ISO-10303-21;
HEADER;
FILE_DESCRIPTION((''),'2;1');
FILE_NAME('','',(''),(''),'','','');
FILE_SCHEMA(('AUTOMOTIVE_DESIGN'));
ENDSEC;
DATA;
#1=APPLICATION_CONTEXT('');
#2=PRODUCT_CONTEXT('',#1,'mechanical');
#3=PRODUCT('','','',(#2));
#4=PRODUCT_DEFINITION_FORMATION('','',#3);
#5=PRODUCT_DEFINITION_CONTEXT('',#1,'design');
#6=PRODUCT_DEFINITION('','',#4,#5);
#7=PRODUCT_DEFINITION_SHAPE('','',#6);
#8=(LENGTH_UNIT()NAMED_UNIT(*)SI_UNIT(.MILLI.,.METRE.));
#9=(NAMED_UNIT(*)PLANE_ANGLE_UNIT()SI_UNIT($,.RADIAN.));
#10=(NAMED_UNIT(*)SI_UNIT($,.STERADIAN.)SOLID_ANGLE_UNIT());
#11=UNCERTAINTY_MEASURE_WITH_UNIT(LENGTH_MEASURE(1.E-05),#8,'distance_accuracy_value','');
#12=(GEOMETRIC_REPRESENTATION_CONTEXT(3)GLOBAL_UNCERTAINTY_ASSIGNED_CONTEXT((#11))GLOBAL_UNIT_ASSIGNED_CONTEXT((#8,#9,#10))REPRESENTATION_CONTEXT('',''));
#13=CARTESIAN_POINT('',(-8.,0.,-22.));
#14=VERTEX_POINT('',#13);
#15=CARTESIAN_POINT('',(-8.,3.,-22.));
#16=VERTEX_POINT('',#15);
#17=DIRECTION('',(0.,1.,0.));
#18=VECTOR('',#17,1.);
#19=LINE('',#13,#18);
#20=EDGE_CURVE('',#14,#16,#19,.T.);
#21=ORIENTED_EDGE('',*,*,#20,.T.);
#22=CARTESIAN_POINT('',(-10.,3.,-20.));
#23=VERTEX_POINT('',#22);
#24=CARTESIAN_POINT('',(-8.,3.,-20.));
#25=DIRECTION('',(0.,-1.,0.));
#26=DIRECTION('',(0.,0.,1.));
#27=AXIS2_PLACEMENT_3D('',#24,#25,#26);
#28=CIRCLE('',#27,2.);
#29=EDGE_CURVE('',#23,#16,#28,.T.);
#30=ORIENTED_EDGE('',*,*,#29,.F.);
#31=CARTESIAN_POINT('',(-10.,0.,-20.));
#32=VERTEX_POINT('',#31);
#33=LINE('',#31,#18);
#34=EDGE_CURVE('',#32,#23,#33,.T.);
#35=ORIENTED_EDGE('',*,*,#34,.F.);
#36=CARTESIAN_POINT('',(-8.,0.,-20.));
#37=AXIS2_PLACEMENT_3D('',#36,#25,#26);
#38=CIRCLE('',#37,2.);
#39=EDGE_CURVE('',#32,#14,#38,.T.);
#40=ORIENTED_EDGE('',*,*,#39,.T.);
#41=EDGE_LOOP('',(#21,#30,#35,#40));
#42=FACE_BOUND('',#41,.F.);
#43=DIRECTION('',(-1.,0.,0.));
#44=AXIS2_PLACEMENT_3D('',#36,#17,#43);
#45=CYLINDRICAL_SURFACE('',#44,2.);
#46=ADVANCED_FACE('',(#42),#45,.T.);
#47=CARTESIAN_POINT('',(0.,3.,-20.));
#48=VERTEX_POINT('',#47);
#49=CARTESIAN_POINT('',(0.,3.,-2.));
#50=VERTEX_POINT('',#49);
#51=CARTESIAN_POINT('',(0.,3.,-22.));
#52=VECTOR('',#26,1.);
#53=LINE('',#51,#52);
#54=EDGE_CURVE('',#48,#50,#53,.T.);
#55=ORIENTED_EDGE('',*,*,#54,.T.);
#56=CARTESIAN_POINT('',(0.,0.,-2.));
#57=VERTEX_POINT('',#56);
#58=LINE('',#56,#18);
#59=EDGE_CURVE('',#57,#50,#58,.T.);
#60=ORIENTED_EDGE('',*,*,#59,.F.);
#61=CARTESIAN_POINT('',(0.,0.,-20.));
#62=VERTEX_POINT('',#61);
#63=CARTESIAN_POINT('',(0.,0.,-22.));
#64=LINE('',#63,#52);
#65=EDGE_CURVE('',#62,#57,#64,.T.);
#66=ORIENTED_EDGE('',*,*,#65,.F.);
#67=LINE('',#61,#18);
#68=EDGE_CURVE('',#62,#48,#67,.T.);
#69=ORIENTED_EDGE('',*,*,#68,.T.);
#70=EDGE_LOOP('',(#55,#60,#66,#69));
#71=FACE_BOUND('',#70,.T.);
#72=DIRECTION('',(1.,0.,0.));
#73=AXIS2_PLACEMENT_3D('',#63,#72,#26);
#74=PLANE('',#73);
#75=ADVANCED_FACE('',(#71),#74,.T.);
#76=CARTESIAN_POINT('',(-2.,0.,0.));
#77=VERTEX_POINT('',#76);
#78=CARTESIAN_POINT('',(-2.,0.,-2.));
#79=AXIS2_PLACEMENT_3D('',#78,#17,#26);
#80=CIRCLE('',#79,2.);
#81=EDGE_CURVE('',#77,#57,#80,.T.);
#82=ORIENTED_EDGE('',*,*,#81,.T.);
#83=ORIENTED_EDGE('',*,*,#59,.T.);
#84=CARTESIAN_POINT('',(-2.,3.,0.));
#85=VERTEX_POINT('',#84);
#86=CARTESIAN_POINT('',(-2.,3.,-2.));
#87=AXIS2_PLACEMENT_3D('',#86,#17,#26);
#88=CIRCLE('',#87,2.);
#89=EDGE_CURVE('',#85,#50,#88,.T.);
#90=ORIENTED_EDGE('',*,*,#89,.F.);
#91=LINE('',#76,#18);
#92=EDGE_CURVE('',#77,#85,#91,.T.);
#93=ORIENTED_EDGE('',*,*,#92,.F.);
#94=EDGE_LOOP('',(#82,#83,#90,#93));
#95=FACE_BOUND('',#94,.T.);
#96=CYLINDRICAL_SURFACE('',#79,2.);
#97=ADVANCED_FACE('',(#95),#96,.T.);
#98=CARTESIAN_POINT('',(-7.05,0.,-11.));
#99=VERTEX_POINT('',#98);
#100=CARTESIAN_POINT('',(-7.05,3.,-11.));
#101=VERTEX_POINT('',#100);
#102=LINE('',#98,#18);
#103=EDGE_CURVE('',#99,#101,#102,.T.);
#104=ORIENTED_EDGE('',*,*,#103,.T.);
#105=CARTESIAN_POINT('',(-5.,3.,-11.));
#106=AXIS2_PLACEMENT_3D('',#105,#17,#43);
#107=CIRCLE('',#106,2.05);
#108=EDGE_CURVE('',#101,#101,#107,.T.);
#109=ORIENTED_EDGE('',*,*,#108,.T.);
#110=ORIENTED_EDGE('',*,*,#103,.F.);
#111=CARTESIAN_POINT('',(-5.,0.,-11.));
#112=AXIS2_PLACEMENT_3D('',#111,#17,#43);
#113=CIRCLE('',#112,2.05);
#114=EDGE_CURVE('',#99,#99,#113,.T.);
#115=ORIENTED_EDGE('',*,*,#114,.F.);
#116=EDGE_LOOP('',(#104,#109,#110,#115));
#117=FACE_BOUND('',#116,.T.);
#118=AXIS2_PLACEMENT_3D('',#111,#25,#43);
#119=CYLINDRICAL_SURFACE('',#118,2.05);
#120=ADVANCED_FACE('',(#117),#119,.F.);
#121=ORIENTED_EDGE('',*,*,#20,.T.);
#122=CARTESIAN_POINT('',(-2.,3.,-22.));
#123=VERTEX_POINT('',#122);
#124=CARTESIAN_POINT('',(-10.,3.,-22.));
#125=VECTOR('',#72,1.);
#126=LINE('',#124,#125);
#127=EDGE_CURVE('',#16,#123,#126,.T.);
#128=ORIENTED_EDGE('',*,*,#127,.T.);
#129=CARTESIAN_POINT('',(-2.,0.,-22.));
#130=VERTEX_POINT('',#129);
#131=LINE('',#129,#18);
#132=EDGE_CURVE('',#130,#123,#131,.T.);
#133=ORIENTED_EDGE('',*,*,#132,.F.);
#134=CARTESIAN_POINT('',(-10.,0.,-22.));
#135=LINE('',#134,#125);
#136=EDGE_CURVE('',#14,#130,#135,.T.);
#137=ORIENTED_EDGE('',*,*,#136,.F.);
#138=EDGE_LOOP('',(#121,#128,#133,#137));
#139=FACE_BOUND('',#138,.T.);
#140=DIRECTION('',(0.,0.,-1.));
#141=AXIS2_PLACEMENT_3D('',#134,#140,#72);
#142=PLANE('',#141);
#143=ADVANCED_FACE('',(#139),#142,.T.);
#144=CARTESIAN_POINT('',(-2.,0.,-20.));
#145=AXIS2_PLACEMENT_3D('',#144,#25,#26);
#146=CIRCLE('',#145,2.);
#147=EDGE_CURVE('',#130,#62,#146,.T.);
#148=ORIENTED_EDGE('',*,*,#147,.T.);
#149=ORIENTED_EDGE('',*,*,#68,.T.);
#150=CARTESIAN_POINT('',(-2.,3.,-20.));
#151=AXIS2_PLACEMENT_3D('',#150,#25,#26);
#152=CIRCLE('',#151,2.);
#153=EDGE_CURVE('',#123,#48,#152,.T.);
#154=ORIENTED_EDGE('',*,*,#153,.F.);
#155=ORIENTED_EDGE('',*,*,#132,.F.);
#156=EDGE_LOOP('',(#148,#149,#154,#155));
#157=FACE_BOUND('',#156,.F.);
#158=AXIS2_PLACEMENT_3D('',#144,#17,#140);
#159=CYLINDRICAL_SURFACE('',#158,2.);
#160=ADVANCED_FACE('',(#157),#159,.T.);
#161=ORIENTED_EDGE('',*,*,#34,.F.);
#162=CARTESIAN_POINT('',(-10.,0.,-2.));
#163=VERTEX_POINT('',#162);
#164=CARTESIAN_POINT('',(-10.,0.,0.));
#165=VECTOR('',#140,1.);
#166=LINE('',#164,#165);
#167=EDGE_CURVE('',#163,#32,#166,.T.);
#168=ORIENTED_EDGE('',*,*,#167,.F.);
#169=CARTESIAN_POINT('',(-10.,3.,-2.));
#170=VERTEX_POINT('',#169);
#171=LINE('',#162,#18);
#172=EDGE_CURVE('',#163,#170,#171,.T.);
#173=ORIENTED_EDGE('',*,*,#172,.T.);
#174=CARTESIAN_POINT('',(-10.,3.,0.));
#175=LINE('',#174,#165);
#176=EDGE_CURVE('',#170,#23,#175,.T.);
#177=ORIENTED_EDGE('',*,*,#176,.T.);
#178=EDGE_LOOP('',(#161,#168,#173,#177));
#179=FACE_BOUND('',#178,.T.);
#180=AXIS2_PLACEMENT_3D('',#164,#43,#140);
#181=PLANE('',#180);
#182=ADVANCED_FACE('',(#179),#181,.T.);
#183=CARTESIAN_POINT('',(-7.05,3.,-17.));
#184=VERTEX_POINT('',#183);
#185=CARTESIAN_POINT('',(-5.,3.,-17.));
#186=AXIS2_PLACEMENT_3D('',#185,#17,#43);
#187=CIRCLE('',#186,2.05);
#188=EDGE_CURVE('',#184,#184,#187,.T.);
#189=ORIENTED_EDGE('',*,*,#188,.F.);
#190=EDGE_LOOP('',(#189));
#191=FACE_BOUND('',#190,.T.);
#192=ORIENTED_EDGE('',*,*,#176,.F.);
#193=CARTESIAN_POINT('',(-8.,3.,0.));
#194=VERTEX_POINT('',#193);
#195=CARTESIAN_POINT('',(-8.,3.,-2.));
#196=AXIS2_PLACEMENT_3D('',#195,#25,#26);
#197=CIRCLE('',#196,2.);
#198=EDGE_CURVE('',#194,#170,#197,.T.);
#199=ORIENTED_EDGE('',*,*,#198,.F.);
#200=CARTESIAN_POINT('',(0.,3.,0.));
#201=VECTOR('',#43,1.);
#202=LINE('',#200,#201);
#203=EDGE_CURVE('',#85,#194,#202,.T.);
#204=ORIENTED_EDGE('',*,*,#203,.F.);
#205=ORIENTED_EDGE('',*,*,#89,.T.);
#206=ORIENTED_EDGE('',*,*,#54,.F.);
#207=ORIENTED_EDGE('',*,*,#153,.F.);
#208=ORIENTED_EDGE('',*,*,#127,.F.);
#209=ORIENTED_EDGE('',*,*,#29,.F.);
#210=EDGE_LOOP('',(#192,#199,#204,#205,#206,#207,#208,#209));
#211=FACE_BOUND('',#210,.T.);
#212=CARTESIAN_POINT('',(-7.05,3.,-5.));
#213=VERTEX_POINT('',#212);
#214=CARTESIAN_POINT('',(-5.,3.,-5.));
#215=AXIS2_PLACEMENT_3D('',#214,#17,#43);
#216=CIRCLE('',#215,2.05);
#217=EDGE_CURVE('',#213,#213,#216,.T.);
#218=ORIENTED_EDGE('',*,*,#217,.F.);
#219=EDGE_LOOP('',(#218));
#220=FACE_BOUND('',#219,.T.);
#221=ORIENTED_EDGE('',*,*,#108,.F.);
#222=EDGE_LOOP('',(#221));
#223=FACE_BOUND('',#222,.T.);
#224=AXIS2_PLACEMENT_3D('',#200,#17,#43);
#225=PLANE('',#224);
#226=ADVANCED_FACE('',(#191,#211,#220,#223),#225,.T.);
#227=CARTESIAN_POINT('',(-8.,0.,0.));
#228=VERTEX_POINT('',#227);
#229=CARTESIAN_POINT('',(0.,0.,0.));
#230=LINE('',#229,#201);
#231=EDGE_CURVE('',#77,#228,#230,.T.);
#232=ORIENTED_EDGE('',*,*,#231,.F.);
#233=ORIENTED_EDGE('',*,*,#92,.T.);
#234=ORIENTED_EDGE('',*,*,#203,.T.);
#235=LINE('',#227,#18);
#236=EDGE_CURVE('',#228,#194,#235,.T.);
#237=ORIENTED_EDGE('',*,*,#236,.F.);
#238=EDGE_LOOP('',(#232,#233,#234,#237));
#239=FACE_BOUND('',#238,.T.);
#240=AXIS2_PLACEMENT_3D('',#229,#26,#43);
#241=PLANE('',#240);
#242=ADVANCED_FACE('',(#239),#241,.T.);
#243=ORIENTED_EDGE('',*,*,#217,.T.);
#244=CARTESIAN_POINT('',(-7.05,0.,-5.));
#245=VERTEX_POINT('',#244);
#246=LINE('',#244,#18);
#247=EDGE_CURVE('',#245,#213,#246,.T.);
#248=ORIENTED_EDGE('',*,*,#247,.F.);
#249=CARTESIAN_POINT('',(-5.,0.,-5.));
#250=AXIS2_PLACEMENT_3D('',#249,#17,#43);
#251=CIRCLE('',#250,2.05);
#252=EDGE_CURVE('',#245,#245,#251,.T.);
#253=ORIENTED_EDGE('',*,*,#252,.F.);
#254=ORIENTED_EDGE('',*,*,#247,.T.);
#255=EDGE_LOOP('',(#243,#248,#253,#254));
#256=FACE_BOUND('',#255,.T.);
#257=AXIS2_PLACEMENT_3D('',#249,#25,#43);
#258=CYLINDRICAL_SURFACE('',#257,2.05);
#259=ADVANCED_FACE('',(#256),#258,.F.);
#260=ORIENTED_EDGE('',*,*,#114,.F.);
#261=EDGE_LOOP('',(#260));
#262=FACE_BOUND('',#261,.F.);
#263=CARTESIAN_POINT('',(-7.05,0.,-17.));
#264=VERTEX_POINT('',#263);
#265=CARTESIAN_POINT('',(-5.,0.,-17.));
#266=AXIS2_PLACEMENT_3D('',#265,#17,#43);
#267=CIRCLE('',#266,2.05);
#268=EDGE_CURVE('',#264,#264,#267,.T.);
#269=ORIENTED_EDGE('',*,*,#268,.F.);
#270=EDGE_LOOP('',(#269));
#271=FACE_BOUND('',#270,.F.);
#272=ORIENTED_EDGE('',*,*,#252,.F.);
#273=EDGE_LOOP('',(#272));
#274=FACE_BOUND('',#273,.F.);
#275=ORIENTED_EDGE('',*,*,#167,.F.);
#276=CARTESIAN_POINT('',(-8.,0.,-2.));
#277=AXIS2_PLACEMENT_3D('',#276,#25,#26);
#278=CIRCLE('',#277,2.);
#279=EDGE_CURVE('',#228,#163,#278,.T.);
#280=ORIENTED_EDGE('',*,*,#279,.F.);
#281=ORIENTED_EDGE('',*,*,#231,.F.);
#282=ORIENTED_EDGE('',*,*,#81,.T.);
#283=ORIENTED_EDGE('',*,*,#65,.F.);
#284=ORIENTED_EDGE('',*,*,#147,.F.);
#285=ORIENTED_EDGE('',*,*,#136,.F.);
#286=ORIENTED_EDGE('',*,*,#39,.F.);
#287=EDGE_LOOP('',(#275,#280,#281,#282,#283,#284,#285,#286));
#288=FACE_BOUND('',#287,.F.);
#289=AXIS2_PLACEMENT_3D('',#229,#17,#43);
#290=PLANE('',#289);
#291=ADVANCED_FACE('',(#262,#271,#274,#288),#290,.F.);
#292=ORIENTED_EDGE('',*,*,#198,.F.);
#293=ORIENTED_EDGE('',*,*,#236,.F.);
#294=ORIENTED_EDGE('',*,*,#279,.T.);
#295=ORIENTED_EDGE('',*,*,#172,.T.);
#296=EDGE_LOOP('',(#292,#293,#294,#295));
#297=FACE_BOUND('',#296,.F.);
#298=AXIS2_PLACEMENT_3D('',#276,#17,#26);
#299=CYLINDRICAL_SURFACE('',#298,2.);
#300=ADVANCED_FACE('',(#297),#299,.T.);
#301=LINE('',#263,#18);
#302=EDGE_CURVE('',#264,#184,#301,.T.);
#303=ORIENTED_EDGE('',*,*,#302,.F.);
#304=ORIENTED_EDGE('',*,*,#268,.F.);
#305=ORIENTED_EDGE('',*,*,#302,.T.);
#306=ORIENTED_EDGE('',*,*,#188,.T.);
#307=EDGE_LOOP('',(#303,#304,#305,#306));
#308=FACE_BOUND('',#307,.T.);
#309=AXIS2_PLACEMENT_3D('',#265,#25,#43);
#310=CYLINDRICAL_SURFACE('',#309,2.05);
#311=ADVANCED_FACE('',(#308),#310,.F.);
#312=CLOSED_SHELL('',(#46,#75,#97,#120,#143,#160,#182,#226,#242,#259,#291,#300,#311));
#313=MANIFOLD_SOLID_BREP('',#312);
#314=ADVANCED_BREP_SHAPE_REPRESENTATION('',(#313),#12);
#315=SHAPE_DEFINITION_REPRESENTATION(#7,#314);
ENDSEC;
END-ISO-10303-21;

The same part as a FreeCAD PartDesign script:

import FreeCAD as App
import Part
import Sketcher
Q = App.Units.Quantity


def edges_at(feature, points):
    """Names of the edges that pass closest to the given points."""
    edges = feature.Shape.Edges
    near = lambda p: min(range(len(edges)), key=lambda i: edges[i].distToShape(Part.Vertex(*p))[0])
    return sorted({f"Edge{near(p) + 1}" for p in points})

doc = App.newDocument("Part")
body = doc.addObject("PartDesign::Body", "Body")

# Sketch on XZ plane
sketch1 = body.newObject("Sketcher::SketchObject", "Sketch")
sketch1.AttachmentSupport = (doc.getObject("XZ_Plane"), [""])
sketch1.MapMode = "FlatFace"
sketch1.addGeometry([
    Part.LineSegment(App.Vector(-10, 0, 0), App.Vector(0, 0, 0)),  # 0
    Part.LineSegment(App.Vector(0, 0, 0), App.Vector(0, -22, 0)),  # 1
    Part.LineSegment(App.Vector(0, -22, 0), App.Vector(-10, -22, 0)),  # 2
    Part.LineSegment(App.Vector(-10, -22, 0), App.Vector(-10, 0, 0)),  # 3
    Part.Circle(App.Vector(-5, -17, 0), App.Vector(0, 0, 1), 2),  # 4
    Part.Circle(App.Vector(-5, -11, 0), App.Vector(0, 0, 1), 2),  # 5
    Part.Circle(App.Vector(-5, -5, 0), App.Vector(0, 0, 1), 2),  # 6
], False)
sketch1.addConstraint([
    Sketcher.Constraint("Coincident", 0, 2, 1, 1),
    Sketcher.Constraint("Coincident", 1, 2, 2, 1),
    Sketcher.Constraint("Coincident", 2, 2, 3, 1),
    Sketcher.Constraint("Coincident", 3, 2, 0, 1),
    Sketcher.Constraint("Horizontal", 0),
    Sketcher.Constraint("Vertical", 1),
    Sketcher.Constraint("Horizontal", 2),
    Sketcher.Constraint("Vertical", 3),
    Sketcher.Constraint("Coincident", 0, 2, -1, 1),
    Sketcher.Constraint("Equal", 4, 5),
    Sketcher.Constraint("Equal", 5, 6),
    Sketcher.Constraint("Vertical", 4, 3, 5, 3),
    Sketcher.Constraint("Vertical", 5, 3, 6, 3),
    Sketcher.Constraint("Diameter", 4, Q("4.1 mm")),
    Sketcher.Constraint("DistanceX", 4, 3, -1, 1, Q("5 mm")),
    Sketcher.Constraint("DistanceY", 6, 3, -1, 1, Q("5 mm")),
    Sketcher.Constraint("DistanceY", 4, 3, 5, 3, Q("6 mm")),
    Sketcher.Constraint("DistanceY", 5, 3, 6, 3, Q("6 mm")),
    Sketcher.Constraint("DistanceY", 1, 2, 4, 3, Q("5 mm")),
    Sketcher.Constraint("DistanceX", 2, 2, 4, 3, Q("5 mm")),
])
pad1 = body.newObject("PartDesign::Pad", "Pad")
pad1.Profile = sketch1
pad1.Length = 3
pad1.Reversed = True
doc.recompute()

fillet = body.newObject("PartDesign::Fillet", "Fillet")
fillet.Base = (pad1, edges_at(pad1, [
    (-10, 1.5, 0),
    (0, 1.5, 0),
    (0, 1.5, -22),
    (-10, 1.5, -22),
]))
fillet.Radius = 2

doc.recompute()
